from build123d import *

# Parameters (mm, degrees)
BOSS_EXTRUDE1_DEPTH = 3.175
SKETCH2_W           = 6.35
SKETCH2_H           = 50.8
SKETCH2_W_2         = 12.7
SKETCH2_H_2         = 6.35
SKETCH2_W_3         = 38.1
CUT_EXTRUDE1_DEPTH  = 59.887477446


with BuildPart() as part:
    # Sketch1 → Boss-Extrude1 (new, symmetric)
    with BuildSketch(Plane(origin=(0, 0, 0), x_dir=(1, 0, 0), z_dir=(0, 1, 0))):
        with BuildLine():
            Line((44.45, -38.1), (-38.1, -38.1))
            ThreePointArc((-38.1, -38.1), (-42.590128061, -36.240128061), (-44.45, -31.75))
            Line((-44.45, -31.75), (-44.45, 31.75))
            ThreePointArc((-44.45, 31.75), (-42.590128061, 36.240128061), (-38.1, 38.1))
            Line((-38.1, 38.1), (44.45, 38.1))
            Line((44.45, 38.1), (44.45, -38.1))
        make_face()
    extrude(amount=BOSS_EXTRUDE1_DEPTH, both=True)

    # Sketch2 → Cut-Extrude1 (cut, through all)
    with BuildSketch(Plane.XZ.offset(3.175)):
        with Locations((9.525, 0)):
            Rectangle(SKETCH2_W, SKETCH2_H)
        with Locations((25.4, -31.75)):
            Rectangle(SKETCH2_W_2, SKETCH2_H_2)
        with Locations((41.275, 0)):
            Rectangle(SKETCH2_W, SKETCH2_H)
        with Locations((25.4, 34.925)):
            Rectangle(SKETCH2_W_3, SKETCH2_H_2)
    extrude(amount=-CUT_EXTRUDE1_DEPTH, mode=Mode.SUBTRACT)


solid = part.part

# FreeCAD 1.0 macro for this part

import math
import FreeCAD as App
import Part
import Sketcher

V = App.Vector
Q = App.Units.Quantity

doc = App.newDocument("Part")
body = doc.addObject("PartDesign::Body", "Body")

sketch1 = doc.addObject("Sketcher::SketchObject", "Sketch")
body.addObject(sketch1)
sketch1.AttachmentSupport = (doc.XZ_Plane, [""])
sketch1.MapMode = "FlatFace"
sketch1.addGeometry([
    Part.LineSegment(V(-38.1, 38.1, 0), V(44.45, 38.1, 0)),
    Part.LineSegment(V(44.45, 38.1, 0), V(44.45, -38.1, 0)),
    Part.LineSegment(V(44.45, -38.1, 0), V(-38.1, -38.1, 0)),
    Part.ArcOfCircle(Part.Circle(V(-38.1, -31.75, 0), V(0, 0, 1), 6.35), math.radians(180), math.radians(270)),
    Part.LineSegment(V(-44.45, -31.75, 0), V(-44.45, 31.75, 0)),
    Part.ArcOfCircle(Part.Circle(V(-38.1, 31.75, 0), V(0, 0, 1), 6.35), math.radians(90), math.radians(180)),
], False)
sketch1.addConstraint([
    Sketcher.Constraint("Coincident", 0, 2, 1, 1),
    Sketcher.Constraint("Coincident", 1, 2, 2, 1),
    Sketcher.Constraint("Tangent", 2, 2, 3, 2),
    Sketcher.Constraint("Tangent", 3, 1, 4, 1),
    Sketcher.Constraint("Tangent", 4, 2, 5, 2),
    Sketcher.Constraint("Tangent", 5, 1, 0, 1),
    Sketcher.Constraint("Horizontal", 0),
    Sketcher.Constraint("Vertical", 1),
    Sketcher.Constraint("Horizontal", 2),
    Sketcher.Constraint("Vertical", 4),
    Sketcher.Constraint("Equal", 3, 5),
    Sketcher.Constraint("DistanceY", 1, 2, 1, 1, Q("3 in")),
    Sketcher.Constraint("Radius", 3, Q("0.25 in")),
    Sketcher.Constraint("DistanceX", 0, 1, 0, 2, Q("3.25 in")),
    Sketcher.Constraint("DistanceX", 3, 3, -1, 1, Q("1.5 in")),
    Sketcher.Constraint("DistanceY", -1, 1, 0, 2, Q("1.5 in")),
])
pad1 = doc.addObject("PartDesign::Pad", "Pad")
body.addObject(pad1)
pad1.Profile = sketch1
pad1.Length = Q("0.25 in")
pad1.Midplane = True

sketch2 = doc.addObject("Sketcher::SketchObject", "Sketch001")
body.addObject(sketch2)
sketch2.AttachmentSupport = (doc.XZ_Plane, [""])
sketch2.MapMode = "FlatFace"
sketch2.AttachmentOffset = App.Placement(V(0, 0, 0.125 * 25.4), App.Rotation())
sketch2.addGeometry([
    Part.LineSegment(V(6.35, 25.4, 0), V(6.35, -25.4, 0)),
    Part.LineSegment(V(6.35, -25.4, 0), V(12.7, -25.4, 0)),
    Part.LineSegment(V(12.7, -25.4, 0), V(12.7, 25.4, 0)),
    Part.LineSegment(V(12.7, 25.4, 0), V(6.35, 25.4, 0)),
    Part.LineSegment(V(19.05, -28.575, 0), V(19.05, -34.925, 0)),
    Part.LineSegment(V(19.05, -34.925, 0), V(31.75, -34.925, 0)),
    Part.LineSegment(V(31.75, -34.925, 0), V(31.75, -28.575, 0)),
    Part.LineSegment(V(31.75, -28.575, 0), V(19.05, -28.575, 0)),
    Part.LineSegment(V(38.1, 25.4, 0), V(38.1, -25.4, 0)),
    Part.LineSegment(V(38.1, -25.4, 0), V(44.45, -25.4, 0)),
    Part.LineSegment(V(44.45, -25.4, 0), V(44.45, 25.4, 0)),
    Part.LineSegment(V(44.45, 25.4, 0), V(38.1, 25.4, 0)),
    Part.LineSegment(V(6.35, 38.1, 0), V(6.35, 31.75, 0)),
    Part.LineSegment(V(6.35, 31.75, 0), V(44.45, 31.75, 0)),
    Part.LineSegment(V(44.45, 31.75, 0), V(44.45, 38.1, 0)),
    Part.LineSegment(V(44.45, 38.1, 0), V(6.35, 38.1, 0)),
], False)
sketch2.addConstraint([
    Sketcher.Constraint("Coincident", 0, 2, 1, 1),
    Sketcher.Constraint("Coincident", 1, 2, 2, 1),
    Sketcher.Constraint("Coincident", 2, 2, 3, 1),
    Sketcher.Constraint("Coincident", 3, 2, 0, 1),
    Sketcher.Constraint("Coincident", 4, 2, 5, 1),
    Sketcher.Constraint("Coincident", 5, 2, 6, 1),
    Sketcher.Constraint("Coincident", 6, 2, 7, 1),
    Sketcher.Constraint("Coincident", 7, 2, 4, 1),
    Sketcher.Constraint("Coincident", 8, 2, 9, 1),
    Sketcher.Constraint("Coincident", 9, 2, 10, 1),
    Sketcher.Constraint("Coincident", 10, 2, 11, 1),
    Sketcher.Constraint("Coincident", 11, 2, 8, 1),
    Sketcher.Constraint("Coincident", 12, 2, 13, 1),
    Sketcher.Constraint("Coincident", 13, 2, 14, 1),
    Sketcher.Constraint("Coincident", 14, 2, 15, 1),
    Sketcher.Constraint("Coincident", 15, 2, 12, 1),
    Sketcher.Constraint("Vertical", 0),
    Sketcher.Constraint("Horizontal", 1),
    Sketcher.Constraint("Vertical", 2),
    Sketcher.Constraint("Horizontal", 3),
    Sketcher.Constraint("Vertical", 4),
    Sketcher.Constraint("Horizontal", 5),
    Sketcher.Constraint("Vertical", 6),
    Sketcher.Constraint("Horizontal", 7),
    Sketcher.Constraint("Vertical", 8),
    Sketcher.Constraint("Horizontal", 9),
    Sketcher.Constraint("Vertical", 10),
    Sketcher.Constraint("Horizontal", 11),
    Sketcher.Constraint("Vertical", 12),
    Sketcher.Constraint("Horizontal", 13),
    Sketcher.Constraint("Vertical", 14),
    Sketcher.Constraint("Horizontal", 15),
    Sketcher.Constraint("Horizontal", 1, 2, 8, 2),
    Sketcher.Constraint("Horizontal", 3, 2, 10, 2),
    Sketcher.Constraint("Vertical", 3, 2, 12, 2),
    Sketcher.Constraint("Vertical", 10, 2, 13, 2),
    Sketcher.Constraint("Equal", 3, 9),
    Sketcher.Constraint("Equal", 11, 4),
    Sketcher.Constraint("Equal", 6, 12),
    Sketcher.Constraint("DistanceY", 0, 2, 0, 1, Q("2 in")),
    Sketcher.Constraint("DistanceX", 5, 1, 5, 2, Q("0.5 in")),
    Sketcher.Constraint("DistanceX", 13, 1, 13, 2, Q("1.5 in")),
    Sketcher.Constraint("DistanceY", 0, 2, -1, 1, Q("1 in")),
    Sketcher.Constraint("DistanceX", 0, 2, 5, 2, Q("1 in")),
    Sketcher.Constraint("DistanceX", 1, 2, 8, 2, Q("1 in")),
    Sketcher.Constraint("DistanceX", -1, 1, 1, 2, Q("0.5 in")),
    Sketcher.Constraint("DistanceY", -1, 1, 14, 2, Q("1.5 in")),
    Sketcher.Constraint("DistanceY", 4, 2, -1, 1, Q("1.375 in")),
])
pocket1 = doc.addObject("PartDesign::Pocket", "Pocket")
body.addObject(pocket1)
pocket1.Profile = sketch2
pocket1.Type = "ThroughAll"

doc.recompute()
